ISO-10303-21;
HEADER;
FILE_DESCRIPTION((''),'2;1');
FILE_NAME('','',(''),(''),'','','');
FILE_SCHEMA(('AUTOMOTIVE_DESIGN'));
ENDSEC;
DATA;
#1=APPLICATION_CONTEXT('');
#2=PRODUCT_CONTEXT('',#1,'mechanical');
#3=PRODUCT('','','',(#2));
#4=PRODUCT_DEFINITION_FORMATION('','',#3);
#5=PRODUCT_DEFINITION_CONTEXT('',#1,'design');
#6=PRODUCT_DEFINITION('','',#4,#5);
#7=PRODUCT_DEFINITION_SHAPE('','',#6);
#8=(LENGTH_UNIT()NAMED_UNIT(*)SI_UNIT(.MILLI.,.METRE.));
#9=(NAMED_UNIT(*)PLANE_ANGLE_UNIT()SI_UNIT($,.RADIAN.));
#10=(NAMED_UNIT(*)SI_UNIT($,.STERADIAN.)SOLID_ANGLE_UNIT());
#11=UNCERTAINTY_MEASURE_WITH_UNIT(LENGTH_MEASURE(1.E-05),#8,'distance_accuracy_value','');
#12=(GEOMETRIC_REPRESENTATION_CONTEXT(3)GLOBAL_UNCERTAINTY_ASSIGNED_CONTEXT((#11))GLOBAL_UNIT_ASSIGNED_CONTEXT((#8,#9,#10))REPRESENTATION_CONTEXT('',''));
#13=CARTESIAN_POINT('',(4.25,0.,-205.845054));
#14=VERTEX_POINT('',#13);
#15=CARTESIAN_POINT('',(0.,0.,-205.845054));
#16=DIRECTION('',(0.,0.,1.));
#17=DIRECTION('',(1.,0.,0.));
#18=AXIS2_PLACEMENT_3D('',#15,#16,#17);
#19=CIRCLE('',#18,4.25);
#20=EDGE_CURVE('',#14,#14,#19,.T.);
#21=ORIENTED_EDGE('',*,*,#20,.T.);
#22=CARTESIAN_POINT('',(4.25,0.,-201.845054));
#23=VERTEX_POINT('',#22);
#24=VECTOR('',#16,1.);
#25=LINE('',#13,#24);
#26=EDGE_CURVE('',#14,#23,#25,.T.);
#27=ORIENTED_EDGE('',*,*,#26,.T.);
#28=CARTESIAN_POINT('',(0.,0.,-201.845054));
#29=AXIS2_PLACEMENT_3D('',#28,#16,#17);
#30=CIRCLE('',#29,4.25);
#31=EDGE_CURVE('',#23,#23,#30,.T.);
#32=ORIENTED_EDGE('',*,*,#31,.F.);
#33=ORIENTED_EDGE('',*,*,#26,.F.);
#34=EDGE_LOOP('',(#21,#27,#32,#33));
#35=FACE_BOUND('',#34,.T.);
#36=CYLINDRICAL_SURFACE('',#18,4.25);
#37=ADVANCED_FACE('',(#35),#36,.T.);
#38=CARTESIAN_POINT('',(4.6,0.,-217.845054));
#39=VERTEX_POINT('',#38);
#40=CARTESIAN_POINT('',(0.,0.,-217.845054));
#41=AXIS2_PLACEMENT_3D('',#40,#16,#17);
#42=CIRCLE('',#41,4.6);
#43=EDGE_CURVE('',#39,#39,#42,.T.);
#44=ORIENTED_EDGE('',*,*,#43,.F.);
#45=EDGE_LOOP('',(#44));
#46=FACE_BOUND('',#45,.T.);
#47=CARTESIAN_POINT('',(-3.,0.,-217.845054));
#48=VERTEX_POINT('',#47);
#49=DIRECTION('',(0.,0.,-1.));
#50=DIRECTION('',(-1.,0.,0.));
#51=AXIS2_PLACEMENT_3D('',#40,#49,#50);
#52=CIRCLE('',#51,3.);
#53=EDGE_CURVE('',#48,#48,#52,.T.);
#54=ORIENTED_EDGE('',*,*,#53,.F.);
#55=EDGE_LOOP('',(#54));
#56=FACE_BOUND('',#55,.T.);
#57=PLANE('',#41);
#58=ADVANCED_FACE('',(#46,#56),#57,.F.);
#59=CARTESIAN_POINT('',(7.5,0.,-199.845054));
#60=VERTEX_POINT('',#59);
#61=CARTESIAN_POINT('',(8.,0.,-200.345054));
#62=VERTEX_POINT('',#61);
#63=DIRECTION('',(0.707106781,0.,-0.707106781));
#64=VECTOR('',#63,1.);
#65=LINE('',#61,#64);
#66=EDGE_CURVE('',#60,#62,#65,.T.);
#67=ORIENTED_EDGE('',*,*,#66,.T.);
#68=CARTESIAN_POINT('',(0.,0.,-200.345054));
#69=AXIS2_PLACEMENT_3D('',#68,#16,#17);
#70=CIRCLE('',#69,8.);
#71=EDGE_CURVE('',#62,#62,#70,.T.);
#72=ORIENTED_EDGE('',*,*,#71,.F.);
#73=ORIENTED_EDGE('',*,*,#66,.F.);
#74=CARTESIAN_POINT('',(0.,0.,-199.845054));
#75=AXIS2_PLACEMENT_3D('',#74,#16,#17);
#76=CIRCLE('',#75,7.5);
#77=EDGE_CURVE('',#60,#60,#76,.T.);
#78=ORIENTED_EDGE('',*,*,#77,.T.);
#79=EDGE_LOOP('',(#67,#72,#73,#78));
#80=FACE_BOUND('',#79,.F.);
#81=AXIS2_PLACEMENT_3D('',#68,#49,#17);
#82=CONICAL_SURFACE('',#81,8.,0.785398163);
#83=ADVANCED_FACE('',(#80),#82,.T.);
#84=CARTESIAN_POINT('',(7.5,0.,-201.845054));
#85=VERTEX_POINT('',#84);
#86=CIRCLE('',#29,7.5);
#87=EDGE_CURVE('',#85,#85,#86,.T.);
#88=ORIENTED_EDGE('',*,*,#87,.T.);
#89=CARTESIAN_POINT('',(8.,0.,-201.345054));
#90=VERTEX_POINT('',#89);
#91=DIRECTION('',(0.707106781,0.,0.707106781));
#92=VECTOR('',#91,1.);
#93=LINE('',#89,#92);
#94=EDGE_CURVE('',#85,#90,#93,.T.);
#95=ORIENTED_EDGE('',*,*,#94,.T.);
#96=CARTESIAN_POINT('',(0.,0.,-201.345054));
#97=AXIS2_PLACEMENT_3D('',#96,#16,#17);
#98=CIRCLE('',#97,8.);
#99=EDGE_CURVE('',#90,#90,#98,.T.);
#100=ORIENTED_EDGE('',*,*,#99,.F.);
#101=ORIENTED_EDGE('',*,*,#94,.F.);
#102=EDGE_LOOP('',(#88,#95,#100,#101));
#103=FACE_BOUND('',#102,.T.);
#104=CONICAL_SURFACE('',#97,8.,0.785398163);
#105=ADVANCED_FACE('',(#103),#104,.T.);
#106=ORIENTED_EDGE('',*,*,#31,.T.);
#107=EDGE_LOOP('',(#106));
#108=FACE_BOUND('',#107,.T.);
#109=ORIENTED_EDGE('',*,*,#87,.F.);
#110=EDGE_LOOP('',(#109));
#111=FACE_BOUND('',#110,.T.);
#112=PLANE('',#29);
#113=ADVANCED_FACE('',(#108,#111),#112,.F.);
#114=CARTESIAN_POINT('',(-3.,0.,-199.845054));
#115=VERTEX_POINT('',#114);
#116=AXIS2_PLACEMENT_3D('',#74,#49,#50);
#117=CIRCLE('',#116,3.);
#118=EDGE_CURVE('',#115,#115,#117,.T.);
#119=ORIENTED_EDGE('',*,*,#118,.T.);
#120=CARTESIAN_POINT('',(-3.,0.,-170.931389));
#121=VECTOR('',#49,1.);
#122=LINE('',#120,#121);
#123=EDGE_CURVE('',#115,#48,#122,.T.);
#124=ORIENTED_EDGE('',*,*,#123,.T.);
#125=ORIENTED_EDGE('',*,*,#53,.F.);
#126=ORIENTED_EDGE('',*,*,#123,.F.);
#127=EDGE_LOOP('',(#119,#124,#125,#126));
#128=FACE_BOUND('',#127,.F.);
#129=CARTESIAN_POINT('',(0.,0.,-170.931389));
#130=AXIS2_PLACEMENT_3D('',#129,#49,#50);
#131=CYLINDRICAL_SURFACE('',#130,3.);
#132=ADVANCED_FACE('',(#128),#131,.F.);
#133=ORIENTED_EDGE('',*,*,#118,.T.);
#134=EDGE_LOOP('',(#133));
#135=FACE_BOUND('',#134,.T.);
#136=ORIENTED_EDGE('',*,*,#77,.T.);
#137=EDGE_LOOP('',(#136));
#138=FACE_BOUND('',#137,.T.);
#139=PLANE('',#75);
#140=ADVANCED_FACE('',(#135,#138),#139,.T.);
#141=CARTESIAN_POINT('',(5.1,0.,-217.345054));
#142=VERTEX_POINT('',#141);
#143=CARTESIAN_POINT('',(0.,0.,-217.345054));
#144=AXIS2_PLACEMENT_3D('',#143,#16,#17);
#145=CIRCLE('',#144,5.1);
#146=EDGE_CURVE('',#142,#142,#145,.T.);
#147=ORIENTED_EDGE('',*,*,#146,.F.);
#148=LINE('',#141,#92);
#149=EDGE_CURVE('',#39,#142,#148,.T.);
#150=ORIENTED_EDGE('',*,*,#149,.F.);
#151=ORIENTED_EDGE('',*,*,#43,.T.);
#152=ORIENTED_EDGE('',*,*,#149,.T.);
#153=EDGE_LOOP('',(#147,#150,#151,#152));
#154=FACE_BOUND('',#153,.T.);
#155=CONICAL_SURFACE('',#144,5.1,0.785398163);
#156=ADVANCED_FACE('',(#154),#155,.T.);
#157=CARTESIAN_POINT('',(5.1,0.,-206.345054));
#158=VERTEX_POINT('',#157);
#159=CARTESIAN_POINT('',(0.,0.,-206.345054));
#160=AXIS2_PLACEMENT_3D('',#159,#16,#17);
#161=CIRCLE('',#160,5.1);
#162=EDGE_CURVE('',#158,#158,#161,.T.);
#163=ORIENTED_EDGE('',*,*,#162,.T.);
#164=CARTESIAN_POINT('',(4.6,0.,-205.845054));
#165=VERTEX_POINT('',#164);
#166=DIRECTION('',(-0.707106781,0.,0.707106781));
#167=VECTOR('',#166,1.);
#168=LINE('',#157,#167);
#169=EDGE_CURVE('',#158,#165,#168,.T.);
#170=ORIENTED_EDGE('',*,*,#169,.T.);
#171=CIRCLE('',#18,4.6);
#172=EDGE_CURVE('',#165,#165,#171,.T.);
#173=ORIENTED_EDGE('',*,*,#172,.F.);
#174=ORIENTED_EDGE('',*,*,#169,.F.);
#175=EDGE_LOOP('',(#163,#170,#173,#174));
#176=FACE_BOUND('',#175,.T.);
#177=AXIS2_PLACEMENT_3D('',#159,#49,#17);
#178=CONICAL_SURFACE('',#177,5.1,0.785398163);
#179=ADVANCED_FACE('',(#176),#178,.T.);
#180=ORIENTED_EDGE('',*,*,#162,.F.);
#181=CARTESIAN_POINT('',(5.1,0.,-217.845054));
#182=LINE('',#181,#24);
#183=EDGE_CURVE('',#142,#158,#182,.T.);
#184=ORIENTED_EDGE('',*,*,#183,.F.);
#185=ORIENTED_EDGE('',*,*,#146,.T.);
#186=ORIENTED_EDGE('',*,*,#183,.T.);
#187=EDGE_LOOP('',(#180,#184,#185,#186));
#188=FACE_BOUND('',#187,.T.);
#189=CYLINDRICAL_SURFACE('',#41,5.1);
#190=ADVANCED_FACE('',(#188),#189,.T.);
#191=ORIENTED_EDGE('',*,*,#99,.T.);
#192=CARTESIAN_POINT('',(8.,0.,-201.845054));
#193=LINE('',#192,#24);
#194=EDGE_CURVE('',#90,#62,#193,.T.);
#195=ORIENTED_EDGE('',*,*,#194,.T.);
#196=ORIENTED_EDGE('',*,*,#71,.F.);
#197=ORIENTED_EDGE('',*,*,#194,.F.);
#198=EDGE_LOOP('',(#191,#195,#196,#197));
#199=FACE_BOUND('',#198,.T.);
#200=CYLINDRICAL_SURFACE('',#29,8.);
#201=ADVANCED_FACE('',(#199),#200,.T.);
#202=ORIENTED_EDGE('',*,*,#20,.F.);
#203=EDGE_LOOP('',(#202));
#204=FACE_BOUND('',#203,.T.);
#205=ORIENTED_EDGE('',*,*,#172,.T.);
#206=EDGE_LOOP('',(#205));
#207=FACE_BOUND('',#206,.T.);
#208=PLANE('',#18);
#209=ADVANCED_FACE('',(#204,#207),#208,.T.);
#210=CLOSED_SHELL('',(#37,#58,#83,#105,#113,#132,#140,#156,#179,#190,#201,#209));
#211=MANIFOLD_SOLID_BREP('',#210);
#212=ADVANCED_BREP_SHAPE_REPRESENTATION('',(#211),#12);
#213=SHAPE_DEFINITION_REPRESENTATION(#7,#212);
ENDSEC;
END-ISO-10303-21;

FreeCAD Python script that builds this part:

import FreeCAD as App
import Part
import Sketcher

V = App.Vector
Q = App.Units.Quantity


def edges_at(feature, points):
    """Names of the edges that pass closest to the given points."""
    edges = feature.Shape.Edges
    near = lambda p: min(range(len(edges)), key=lambda i: edges[i].distToShape(Part.Vertex(*p))[0])
    return sorted({f"Edge{near(p) + 1}" for p in points})

doc = App.newDocument("Part")
body = doc.addObject("PartDesign::Body", "Body")

# Sketch on XZ plane
sketch1 = body.newObject("Sketcher::SketchObject", "Sketch")
sketch1.AttachmentSupport = (doc.getObject("XZ_Plane"), [""])
sketch1.MapMode = "FlatFace"
sketch1.addGeometry([
    Part.LineSegment(V(8, -199.8, 0), V(0, -199.8, 0)),  # 0
    Part.LineSegment(V(0, -199.8, 0), V(0, -217.8, 0)),  # 1
    Part.LineSegment(V(0, -217.8, 0), V(5.1, -217.8, 0)),  # 2
    Part.LineSegment(V(5.1, -217.8, 0), V(5.1, -205.8, 0)),  # 3
    Part.LineSegment(V(5.1, -205.8, 0), V(4.2, -205.8, 0)),  # 4
    Part.LineSegment(V(4.2, -205.8, 0), V(4.2, -201.8, 0)),  # 5
    Part.LineSegment(V(4.2, -201.8, 0), V(8, -201.8, 0)),  # 6
    Part.LineSegment(V(8, -201.8, 0), V(8, -199.8, 0)),  # 7
], False)
sketch1.addConstraint([
    Sketcher.Constraint("Coincident", 0, 2, 1, 1),
    Sketcher.Constraint("Coincident", 1, 2, 2, 1),
    Sketcher.Constraint("Coincident", 2, 2, 3, 1),
    Sketcher.Constraint("Coincident", 3, 2, 4, 1),
    Sketcher.Constraint("Coincident", 4, 2, 5, 1),
    Sketcher.Constraint("Coincident", 5, 2, 6, 1),
    Sketcher.Constraint("Coincident", 6, 2, 7, 1),
    Sketcher.Constraint("Coincident", 7, 2, 0, 1),
    Sketcher.Constraint("Horizontal", 0),
    Sketcher.Constraint("Vertical", 1),
    Sketcher.Constraint("Horizontal", 2),
    Sketcher.Constraint("Vertical", 3),
    Sketcher.Constraint("Horizontal", 4),
    Sketcher.Constraint("Vertical", 5),
    Sketcher.Constraint("Horizontal", 6),
    Sketcher.Constraint("Vertical", 7),
    Sketcher.Constraint("PointOnObject", 0, 2, -2),
    Sketcher.Constraint("DistanceX", 0, 2, 0, 1, Q("8 mm")),
    Sketcher.Constraint("DistanceY", 1, 2, 1, 1, Q("18 mm")),
    Sketcher.Constraint("DistanceY", 3, 1, 3, 2, Q("12 mm")),
    Sketcher.Constraint("DistanceY", 5, 1, 5, 2, Q("4 mm")),
    Sketcher.Constraint("DistanceX", 2, 1, 2, 2, Q("5.1 mm")),
    Sketcher.Constraint("DistanceX", 4, 2, 4, 1, Q("0.85 mm")),
    Sketcher.Constraint("DistanceY", 0, 2, -1, 1, Q("199.845054 mm")),
])
revolution = body.newObject("PartDesign::Revolution", "Revolution")
revolution.Profile = sketch1
revolution.ReferenceAxis = (sketch1, ["V_Axis"])
revolution.Angle = 360
doc.recompute()

chamfer = body.newObject("PartDesign::Chamfer", "Chamfer")
chamfer.Base = (revolution, edges_at(revolution, [
    (-8, 0, -199.845),
    (-8, 0, -201.845),
    (-5.1, 0, -205.845),
    (-5.1, 0, -217.845),
]))
chamfer.ChamferType = "Two distances"
chamfer.Size = 0.5
chamfer.Size2 = 0.5

# Sketch on XY plane
sketch2 = body.newObject("Sketcher::SketchObject", "Sketch001")
sketch2.AttachmentSupport = (doc.getObject("XY_Plane"), [""])
sketch2.MapMode = "FlatFace"
sketch2.AttachmentOffset = App.Placement(V(0, 0, -199.845054), App.Rotation())
sketch2.addGeometry(Part.Circle(V(0, 0, 0), V(0, 0, 1), 3), False)
sketch2.addConstraint([
    Sketcher.Constraint("Coincident", 0, 3, -1, 1),
    Sketcher.Constraint("Diameter", 0, Q("6 mm")),
])
doc.recompute()
hole = body.newObject("PartDesign::Hole", "Hole")
hole.Profile = sketch2
hole.ThreadType = "None"
hole.Diameter = 6
hole.DepthType = "ThroughAll"

doc.recompute()
